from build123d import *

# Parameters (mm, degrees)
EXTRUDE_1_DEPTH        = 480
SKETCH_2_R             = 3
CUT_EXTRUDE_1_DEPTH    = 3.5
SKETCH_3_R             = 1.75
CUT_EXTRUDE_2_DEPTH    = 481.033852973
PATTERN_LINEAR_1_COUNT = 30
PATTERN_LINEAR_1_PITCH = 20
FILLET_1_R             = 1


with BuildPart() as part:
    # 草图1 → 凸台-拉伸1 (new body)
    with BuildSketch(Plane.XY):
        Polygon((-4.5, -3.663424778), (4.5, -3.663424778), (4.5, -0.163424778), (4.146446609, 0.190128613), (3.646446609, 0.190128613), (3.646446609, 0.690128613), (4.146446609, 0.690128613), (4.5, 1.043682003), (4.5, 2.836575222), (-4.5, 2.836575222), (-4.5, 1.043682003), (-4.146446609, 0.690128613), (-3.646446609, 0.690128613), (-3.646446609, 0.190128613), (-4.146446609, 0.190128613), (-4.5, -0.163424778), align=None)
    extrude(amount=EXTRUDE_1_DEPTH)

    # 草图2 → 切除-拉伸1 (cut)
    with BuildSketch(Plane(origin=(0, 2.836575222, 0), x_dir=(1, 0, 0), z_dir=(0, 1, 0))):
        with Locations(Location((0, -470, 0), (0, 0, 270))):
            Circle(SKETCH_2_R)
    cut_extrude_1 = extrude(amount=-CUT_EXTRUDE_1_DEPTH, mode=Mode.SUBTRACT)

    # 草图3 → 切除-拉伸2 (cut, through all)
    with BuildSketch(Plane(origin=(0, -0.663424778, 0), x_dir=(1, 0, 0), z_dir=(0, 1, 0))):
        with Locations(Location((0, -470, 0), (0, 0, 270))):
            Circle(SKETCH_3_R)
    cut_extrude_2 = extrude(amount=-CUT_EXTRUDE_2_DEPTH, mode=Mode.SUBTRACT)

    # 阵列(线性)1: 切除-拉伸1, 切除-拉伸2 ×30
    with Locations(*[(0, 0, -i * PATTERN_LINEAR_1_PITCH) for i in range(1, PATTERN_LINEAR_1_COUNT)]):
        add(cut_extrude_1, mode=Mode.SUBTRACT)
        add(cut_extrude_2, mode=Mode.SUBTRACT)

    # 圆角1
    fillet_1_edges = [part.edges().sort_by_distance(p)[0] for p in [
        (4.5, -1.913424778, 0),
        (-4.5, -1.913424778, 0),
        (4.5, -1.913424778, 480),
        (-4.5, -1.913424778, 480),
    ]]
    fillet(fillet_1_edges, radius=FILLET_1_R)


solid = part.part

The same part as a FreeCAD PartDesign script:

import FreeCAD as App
import Part
import Sketcher


def edges_at(feature, points):
    """Names of the edges that pass closest to the given points."""
    edges = feature.Shape.Edges
    near = lambda p: min(range(len(edges)), key=lambda i: edges[i].distToShape(Part.Vertex(*p))[0])
    return sorted({f"Edge{near(p) + 1}" for p in points})


def add_polygon(sketch, points):
    """Adds a closed chain of lines whose ends are joined by coincident constraints."""
    first, n = sketch.GeometryCount, len(points)
    for a, b in zip(points, points[1:] + points[:1]):
        sketch.addGeometry(Part.LineSegment(App.Vector(*a, 0), App.Vector(*b, 0)), False)
    for i in range(n):
        sketch.addConstraint(Sketcher.Constraint("Coincident", first + i, 2, first + (i + 1) % n, 1))

doc = App.newDocument("Part")
body = doc.addObject("PartDesign::Body", "Body")

# Sketch on XY plane
sketch1 = body.newObject("Sketcher::SketchObject", "Sketch")
sketch1.AttachmentSupport = (doc.getObject("XY_Plane"), [""])
sketch1.MapMode = "FlatFace"
add_polygon(sketch1, [(-4.5, -3.66), (4.5, -3.66), (4.5, -0.16), (4.15, 0.19), (3.65, 0.19), (3.65, 0.69), (4.15, 0.69), (4.5, 1.04), (4.5, 2.84), (-4.5, 2.84), (-4.5, 1.04), (-4.15, 0.69), (-3.65, 0.69), (-3.65, 0.19), (-4.15, 0.19), (-4.5, -0.16)])  # lines 0-15
sketch1.addConstraint(Sketcher.Constraint("Horizontal", 0))
sketch1.addConstraint(Sketcher.Constraint("Vertical", 1))
sketch1.addConstraint(Sketcher.Constraint("Horizontal", 3))
sketch1.addConstraint(Sketcher.Constraint("Vertical", 4))
sketch1.addConstraint(Sketcher.Constraint("Horizontal", 5))
sketch1.addConstraint(Sketcher.Constraint("Vertical", 7))
sketch1.addConstraint(Sketcher.Constraint("Horizontal", 8))
sketch1.addConstraint(Sketcher.Constraint("Vertical", 9))
sketch1.addConstraint(Sketcher.Constraint("Horizontal", 11))
sketch1.addConstraint(Sketcher.Constraint("Vertical", 12))
sketch1.addConstraint(Sketcher.Constraint("Horizontal", 13))
sketch1.addConstraint(Sketcher.Constraint("Vertical", 15))
sketch1.addConstraint(Sketcher.Constraint("Symmetric", 6, 2, 9, 2, -2))
sketch1.addConstraint(Sketcher.Constraint("Symmetric", 5, 2, 10, 2, -2))
sketch1.addConstraint(Sketcher.Constraint("Symmetric", 3, 2, 12, 2, -2))
sketch1.addConstraint(Sketcher.Constraint("Symmetric", 1, 2, 14, 2, -2))
sketch1.addConstraint(Sketcher.Constraint("Perpendicular", 2, 6))
sketch1.addConstraint(Sketcher.Constraint("Perpendicular", 6, 10))
sketch1.addConstraint(Sketcher.Constraint("Perpendicular", 10, 14))
sketch1.addConstraint(Sketcher.Constraint("Vertical", 2, 2, 5, 2))
sketch1.addConstraint(Sketcher.Constraint("Vertical", 1, 2, 6, 2))
sketch1.addConstraint(Sketcher.Constraint("Equal", 13, 4))
sketch1.addConstraint(Sketcher.Constraint("DistanceX", 0, 1, 0, 2, 9.0))
sketch1.addConstraint(Sketcher.Constraint("DistanceX", 3, 2, 3, 1, 0.5))
sketch1.addConstraint(Sketcher.Constraint("DistanceY", 1, 1, 1, 2, 3.5))
sketch1.addConstraint(Sketcher.Constraint("Distance", 2, 0.5))
sketch1.addConstraint(Sketcher.Constraint("DistanceY", 7, 1, 7, 2, 1.792893))
sketch1.addConstraint(Sketcher.Constraint("DistanceY", -1, 1, 2, 2, 0.190129))
pad1 = body.newObject("PartDesign::Pad", "Pad")
pad1.Profile = sketch1
pad1.Length = 480

# Sketch on XZ plane
sketch2 = body.newObject("Sketcher::SketchObject", "Sketch001")
sketch2.AttachmentSupport = (doc.getObject("XZ_Plane"), [""])
sketch2.MapMode = "FlatFace"
sketch2.AttachmentOffset = App.Placement(App.Vector(0, 0, -2.836575), App.Rotation())
sketch2.addGeometry(Part.Circle(App.Vector(0, 470, 0), App.Vector(0, 0, 1), 3), False)
sketch2.addConstraint(Sketcher.Constraint("PointOnObject", 0, 3, -2))
sketch2.addConstraint(Sketcher.Constraint("Diameter", 0, 6.0))
sketch2.addConstraint(Sketcher.Constraint("DistanceY", -1, 1, 0, 3, 470.0))
pocket1 = body.newObject("PartDesign::Pocket", "Pocket")
pocket1.Profile = sketch2
pocket1.Length = 3.5
pocket1.Reversed = True

# Sketch on XZ plane
sketch3 = body.newObject("Sketcher::SketchObject", "Sketch002")
sketch3.AttachmentSupport = (doc.getObject("XZ_Plane"), [""])
sketch3.MapMode = "FlatFace"
sketch3.AttachmentOffset = App.Placement(App.Vector(0, 0, 0.663425), App.Rotation())
sketch3.addGeometry(Part.Circle(App.Vector(0, 470, 0), App.Vector(0, 0, 1), 1.8), False)
sketch3.addConstraint(Sketcher.Constraint("PointOnObject", 0, 3, -2))
sketch3.addConstraint(Sketcher.Constraint("Diameter", 0, 3.5))
sketch3.addConstraint(Sketcher.Constraint("DistanceY", -1, 1, 0, 3, 470.0))
pocket2 = body.newObject("PartDesign::Pocket", "Pocket001")
pocket2.Profile = sketch3
pocket2.Type = "ThroughAll"
pocket2.Reversed = True
doc.recompute()

linearpattern = body.newObject("PartDesign::LinearPattern", "LinearPattern")
linearpattern.Originals = [pocket1, pocket2]
linearpattern.Direction = (doc.getObject("Z_Axis"), [""])
linearpattern.Mode = "offset"
linearpattern.Offset = 20
linearpattern.Occurrences = 30
linearpattern.Reversed = True
body.Tip = linearpattern
doc.recompute()

fillet = body.newObject("PartDesign::Fillet", "Fillet")
fillet.Base = (linearpattern, edges_at(linearpattern, [
    (4.5, -1.913, 0),
    (-4.5, -1.913, 0),
    (4.5, -1.913, 480),
    (-4.5, -1.913, 480),
]))
fillet.Radius = 1

doc.recompute()
